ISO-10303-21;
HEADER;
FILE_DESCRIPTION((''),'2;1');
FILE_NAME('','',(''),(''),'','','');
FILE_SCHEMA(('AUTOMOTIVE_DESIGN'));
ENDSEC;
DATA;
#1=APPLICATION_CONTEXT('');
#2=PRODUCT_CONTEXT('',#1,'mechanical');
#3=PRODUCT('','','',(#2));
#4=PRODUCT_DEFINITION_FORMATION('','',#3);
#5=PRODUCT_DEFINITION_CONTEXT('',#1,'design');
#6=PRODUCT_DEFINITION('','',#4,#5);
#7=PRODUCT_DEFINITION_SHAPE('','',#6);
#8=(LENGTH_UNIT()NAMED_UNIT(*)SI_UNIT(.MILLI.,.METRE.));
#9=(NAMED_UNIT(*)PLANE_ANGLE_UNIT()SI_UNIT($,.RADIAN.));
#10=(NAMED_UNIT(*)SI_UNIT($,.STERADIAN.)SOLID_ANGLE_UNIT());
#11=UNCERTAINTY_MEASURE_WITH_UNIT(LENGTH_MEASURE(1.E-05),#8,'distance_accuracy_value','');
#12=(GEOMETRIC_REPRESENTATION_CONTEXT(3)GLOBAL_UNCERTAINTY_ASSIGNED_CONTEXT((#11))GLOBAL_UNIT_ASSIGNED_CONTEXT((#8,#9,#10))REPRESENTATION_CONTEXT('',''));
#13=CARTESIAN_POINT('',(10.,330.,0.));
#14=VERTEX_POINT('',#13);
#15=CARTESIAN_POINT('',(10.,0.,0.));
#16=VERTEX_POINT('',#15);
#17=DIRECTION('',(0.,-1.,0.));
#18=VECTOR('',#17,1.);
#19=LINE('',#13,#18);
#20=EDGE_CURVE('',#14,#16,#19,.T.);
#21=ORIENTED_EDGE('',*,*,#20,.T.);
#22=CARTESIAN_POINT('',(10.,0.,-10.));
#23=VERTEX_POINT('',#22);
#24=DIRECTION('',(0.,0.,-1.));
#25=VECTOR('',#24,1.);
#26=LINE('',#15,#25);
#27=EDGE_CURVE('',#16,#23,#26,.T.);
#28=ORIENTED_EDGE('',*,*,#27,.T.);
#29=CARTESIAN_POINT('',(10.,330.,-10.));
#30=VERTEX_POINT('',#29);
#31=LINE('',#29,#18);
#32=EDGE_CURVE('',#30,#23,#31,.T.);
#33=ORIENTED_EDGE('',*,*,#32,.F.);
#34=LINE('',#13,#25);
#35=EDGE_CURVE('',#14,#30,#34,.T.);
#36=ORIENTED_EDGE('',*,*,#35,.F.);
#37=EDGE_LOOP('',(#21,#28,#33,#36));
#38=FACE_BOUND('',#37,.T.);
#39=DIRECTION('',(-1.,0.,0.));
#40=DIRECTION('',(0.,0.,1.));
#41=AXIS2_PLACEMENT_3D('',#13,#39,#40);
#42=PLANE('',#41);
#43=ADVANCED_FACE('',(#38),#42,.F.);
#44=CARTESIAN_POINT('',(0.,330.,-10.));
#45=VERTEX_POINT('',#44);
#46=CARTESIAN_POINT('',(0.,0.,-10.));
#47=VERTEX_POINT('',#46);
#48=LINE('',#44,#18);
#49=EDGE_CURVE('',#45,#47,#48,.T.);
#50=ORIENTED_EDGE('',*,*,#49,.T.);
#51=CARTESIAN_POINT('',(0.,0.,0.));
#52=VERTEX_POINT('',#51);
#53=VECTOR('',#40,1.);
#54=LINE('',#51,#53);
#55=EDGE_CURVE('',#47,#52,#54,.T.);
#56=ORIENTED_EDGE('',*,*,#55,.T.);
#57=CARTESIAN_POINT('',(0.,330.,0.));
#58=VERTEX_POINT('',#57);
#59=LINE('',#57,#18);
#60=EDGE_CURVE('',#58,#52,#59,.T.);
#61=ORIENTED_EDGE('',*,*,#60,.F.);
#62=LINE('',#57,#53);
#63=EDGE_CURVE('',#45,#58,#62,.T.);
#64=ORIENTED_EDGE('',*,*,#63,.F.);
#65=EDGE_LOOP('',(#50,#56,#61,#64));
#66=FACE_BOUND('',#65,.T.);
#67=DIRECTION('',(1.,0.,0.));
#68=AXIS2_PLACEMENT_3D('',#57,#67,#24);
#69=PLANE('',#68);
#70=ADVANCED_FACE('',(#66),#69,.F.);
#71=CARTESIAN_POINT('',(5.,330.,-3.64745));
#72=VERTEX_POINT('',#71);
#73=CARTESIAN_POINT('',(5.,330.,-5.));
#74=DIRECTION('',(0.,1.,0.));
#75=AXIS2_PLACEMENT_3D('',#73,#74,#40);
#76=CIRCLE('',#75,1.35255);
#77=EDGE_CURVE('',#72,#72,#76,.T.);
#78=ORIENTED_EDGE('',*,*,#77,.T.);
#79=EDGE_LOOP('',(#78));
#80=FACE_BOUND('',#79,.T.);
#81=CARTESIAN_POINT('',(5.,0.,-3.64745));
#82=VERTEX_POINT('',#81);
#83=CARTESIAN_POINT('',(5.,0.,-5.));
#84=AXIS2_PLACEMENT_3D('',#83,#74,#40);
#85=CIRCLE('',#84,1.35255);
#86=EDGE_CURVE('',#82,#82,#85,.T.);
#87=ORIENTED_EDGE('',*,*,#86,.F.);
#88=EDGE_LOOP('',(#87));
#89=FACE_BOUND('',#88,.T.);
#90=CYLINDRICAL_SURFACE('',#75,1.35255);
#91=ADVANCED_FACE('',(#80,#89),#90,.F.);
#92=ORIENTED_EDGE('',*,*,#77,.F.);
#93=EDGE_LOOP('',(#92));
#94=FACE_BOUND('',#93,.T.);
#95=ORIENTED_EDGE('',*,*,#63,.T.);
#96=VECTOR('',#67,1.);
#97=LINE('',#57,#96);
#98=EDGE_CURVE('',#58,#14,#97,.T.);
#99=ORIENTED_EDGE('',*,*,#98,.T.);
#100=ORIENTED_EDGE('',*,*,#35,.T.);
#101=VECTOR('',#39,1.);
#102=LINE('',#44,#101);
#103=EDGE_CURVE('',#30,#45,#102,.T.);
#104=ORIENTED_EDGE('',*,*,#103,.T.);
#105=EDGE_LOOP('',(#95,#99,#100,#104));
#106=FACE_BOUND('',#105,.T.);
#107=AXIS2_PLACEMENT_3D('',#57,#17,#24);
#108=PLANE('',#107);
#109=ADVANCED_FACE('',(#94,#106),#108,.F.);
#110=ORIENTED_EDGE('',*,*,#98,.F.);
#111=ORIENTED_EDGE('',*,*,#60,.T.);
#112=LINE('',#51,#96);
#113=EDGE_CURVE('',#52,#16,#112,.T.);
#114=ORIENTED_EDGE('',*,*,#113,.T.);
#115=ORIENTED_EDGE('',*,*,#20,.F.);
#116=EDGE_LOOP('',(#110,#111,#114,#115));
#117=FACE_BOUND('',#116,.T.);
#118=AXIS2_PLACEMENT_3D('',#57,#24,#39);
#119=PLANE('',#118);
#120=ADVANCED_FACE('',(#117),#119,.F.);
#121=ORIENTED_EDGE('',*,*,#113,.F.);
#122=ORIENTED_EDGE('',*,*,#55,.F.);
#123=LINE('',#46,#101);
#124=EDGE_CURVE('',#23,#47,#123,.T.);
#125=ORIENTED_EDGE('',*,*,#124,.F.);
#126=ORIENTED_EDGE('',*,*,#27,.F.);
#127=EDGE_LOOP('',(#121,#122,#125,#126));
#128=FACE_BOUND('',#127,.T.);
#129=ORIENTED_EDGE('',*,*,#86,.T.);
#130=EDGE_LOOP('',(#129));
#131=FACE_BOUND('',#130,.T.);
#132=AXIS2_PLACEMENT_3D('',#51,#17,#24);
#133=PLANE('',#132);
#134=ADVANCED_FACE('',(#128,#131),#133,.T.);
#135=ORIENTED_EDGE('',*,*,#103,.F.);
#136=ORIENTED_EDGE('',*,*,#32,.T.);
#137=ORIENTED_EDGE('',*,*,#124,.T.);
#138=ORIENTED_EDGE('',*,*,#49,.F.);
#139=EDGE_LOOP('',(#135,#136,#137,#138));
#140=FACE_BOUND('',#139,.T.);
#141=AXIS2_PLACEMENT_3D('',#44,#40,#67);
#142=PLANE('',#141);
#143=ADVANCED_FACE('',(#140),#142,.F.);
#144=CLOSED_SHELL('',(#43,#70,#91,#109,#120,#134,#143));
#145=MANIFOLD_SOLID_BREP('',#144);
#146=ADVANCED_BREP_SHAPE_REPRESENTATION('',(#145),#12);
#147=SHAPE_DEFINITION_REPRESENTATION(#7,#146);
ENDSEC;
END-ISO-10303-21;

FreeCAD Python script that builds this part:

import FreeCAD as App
import Part
import Sketcher
from FreeCAD import Vector

doc = App.newDocument("Part")
params = doc.addObject("Spreadsheet::Sheet", "Params")
for row, (alias, value) in enumerate([
    ("sketch1_width", "10 mm"),
    ("pad1_length", "330 mm"),
    ("hole_diameter", "2.7051 mm"),
], start=1):
    params.set(f"A{row}", alias)
    params.set(f"B{row}", "=" + value)
    params.setAlias(f"B{row}", alias)

body = doc.addObject("PartDesign::Body", "Body")

# Sketch on XZ plane
sketch1 = body.newObject("Sketcher::SketchObject", "Sketch")
sketch1.AttachmentSupport = (doc.getObject("XZ_Plane"), [""])
sketch1.MapMode = "FlatFace"
sketch1.addGeometry([
    Part.LineSegment(Vector(0, -10, 0), Vector(0, 0, 0)),
    Part.LineSegment(Vector(0, 0, 0), Vector(10, 0, 0)),
    Part.LineSegment(Vector(10, 0, 0), Vector(10, -10, 0)),
    Part.LineSegment(Vector(10, -10, 0), Vector(0, -10, 0)),
], False)
sketch1.addConstraint([
    Sketcher.Constraint("Coincident", 0, 2, 1, 1),
    Sketcher.Constraint("Coincident", 1, 2, 2, 1),
    Sketcher.Constraint("Coincident", 2, 2, 3, 1),
    Sketcher.Constraint("Coincident", 3, 2, 0, 1),
    Sketcher.Constraint("Vertical", 0),
    Sketcher.Constraint("Horizontal", 1),
    Sketcher.Constraint("Vertical", 2),
    Sketcher.Constraint("Horizontal", 3),
    Sketcher.Constraint("Coincident", 0, 2, -1, 1),
    Sketcher.Constraint("Equal", 3, 0),
    Sketcher.Constraint("DistanceX", 1, 1, 1, 2, 10.0),
])
sketch1.setExpression("Constraints[10]", "Params.sketch1_width")
pad1 = body.newObject("PartDesign::Pad", "Pad")
pad1.Profile = sketch1
pad1.setExpression("Length", "Params.pad1_length")
pad1.Reversed = True

# Sketch on XZ plane
sketch2 = body.newObject("Sketcher::SketchObject", "Sketch001")
sketch2.AttachmentSupport = (doc.getObject("XZ_Plane"), [""])
sketch2.MapMode = "FlatFace"
sketch2.AttachmentOffset = App.Placement(Vector(0, 0, -330), App.Rotation())
sketch2.addGeometry(Part.Circle(Vector(5, -5, 0), Vector(0, 0, 1), 1.4), False)
sketch2.addConstraint([
    Sketcher.Constraint("DistanceX", -1, 1, 0, 3, 5.0),
    Sketcher.Constraint("DistanceY", 0, 3, -1, 1, 5.0),
    Sketcher.Constraint("Diameter", 0, 2.7051),
])
doc.recompute()
hole = body.newObject("PartDesign::Hole", "Hole")
hole.Profile = sketch2
hole.ThreadType = "None"
hole.setExpression("Diameter", "Params.hole_diameter")
hole.DepthType = "ThroughAll"
hole.Reversed = True

doc.recompute()
